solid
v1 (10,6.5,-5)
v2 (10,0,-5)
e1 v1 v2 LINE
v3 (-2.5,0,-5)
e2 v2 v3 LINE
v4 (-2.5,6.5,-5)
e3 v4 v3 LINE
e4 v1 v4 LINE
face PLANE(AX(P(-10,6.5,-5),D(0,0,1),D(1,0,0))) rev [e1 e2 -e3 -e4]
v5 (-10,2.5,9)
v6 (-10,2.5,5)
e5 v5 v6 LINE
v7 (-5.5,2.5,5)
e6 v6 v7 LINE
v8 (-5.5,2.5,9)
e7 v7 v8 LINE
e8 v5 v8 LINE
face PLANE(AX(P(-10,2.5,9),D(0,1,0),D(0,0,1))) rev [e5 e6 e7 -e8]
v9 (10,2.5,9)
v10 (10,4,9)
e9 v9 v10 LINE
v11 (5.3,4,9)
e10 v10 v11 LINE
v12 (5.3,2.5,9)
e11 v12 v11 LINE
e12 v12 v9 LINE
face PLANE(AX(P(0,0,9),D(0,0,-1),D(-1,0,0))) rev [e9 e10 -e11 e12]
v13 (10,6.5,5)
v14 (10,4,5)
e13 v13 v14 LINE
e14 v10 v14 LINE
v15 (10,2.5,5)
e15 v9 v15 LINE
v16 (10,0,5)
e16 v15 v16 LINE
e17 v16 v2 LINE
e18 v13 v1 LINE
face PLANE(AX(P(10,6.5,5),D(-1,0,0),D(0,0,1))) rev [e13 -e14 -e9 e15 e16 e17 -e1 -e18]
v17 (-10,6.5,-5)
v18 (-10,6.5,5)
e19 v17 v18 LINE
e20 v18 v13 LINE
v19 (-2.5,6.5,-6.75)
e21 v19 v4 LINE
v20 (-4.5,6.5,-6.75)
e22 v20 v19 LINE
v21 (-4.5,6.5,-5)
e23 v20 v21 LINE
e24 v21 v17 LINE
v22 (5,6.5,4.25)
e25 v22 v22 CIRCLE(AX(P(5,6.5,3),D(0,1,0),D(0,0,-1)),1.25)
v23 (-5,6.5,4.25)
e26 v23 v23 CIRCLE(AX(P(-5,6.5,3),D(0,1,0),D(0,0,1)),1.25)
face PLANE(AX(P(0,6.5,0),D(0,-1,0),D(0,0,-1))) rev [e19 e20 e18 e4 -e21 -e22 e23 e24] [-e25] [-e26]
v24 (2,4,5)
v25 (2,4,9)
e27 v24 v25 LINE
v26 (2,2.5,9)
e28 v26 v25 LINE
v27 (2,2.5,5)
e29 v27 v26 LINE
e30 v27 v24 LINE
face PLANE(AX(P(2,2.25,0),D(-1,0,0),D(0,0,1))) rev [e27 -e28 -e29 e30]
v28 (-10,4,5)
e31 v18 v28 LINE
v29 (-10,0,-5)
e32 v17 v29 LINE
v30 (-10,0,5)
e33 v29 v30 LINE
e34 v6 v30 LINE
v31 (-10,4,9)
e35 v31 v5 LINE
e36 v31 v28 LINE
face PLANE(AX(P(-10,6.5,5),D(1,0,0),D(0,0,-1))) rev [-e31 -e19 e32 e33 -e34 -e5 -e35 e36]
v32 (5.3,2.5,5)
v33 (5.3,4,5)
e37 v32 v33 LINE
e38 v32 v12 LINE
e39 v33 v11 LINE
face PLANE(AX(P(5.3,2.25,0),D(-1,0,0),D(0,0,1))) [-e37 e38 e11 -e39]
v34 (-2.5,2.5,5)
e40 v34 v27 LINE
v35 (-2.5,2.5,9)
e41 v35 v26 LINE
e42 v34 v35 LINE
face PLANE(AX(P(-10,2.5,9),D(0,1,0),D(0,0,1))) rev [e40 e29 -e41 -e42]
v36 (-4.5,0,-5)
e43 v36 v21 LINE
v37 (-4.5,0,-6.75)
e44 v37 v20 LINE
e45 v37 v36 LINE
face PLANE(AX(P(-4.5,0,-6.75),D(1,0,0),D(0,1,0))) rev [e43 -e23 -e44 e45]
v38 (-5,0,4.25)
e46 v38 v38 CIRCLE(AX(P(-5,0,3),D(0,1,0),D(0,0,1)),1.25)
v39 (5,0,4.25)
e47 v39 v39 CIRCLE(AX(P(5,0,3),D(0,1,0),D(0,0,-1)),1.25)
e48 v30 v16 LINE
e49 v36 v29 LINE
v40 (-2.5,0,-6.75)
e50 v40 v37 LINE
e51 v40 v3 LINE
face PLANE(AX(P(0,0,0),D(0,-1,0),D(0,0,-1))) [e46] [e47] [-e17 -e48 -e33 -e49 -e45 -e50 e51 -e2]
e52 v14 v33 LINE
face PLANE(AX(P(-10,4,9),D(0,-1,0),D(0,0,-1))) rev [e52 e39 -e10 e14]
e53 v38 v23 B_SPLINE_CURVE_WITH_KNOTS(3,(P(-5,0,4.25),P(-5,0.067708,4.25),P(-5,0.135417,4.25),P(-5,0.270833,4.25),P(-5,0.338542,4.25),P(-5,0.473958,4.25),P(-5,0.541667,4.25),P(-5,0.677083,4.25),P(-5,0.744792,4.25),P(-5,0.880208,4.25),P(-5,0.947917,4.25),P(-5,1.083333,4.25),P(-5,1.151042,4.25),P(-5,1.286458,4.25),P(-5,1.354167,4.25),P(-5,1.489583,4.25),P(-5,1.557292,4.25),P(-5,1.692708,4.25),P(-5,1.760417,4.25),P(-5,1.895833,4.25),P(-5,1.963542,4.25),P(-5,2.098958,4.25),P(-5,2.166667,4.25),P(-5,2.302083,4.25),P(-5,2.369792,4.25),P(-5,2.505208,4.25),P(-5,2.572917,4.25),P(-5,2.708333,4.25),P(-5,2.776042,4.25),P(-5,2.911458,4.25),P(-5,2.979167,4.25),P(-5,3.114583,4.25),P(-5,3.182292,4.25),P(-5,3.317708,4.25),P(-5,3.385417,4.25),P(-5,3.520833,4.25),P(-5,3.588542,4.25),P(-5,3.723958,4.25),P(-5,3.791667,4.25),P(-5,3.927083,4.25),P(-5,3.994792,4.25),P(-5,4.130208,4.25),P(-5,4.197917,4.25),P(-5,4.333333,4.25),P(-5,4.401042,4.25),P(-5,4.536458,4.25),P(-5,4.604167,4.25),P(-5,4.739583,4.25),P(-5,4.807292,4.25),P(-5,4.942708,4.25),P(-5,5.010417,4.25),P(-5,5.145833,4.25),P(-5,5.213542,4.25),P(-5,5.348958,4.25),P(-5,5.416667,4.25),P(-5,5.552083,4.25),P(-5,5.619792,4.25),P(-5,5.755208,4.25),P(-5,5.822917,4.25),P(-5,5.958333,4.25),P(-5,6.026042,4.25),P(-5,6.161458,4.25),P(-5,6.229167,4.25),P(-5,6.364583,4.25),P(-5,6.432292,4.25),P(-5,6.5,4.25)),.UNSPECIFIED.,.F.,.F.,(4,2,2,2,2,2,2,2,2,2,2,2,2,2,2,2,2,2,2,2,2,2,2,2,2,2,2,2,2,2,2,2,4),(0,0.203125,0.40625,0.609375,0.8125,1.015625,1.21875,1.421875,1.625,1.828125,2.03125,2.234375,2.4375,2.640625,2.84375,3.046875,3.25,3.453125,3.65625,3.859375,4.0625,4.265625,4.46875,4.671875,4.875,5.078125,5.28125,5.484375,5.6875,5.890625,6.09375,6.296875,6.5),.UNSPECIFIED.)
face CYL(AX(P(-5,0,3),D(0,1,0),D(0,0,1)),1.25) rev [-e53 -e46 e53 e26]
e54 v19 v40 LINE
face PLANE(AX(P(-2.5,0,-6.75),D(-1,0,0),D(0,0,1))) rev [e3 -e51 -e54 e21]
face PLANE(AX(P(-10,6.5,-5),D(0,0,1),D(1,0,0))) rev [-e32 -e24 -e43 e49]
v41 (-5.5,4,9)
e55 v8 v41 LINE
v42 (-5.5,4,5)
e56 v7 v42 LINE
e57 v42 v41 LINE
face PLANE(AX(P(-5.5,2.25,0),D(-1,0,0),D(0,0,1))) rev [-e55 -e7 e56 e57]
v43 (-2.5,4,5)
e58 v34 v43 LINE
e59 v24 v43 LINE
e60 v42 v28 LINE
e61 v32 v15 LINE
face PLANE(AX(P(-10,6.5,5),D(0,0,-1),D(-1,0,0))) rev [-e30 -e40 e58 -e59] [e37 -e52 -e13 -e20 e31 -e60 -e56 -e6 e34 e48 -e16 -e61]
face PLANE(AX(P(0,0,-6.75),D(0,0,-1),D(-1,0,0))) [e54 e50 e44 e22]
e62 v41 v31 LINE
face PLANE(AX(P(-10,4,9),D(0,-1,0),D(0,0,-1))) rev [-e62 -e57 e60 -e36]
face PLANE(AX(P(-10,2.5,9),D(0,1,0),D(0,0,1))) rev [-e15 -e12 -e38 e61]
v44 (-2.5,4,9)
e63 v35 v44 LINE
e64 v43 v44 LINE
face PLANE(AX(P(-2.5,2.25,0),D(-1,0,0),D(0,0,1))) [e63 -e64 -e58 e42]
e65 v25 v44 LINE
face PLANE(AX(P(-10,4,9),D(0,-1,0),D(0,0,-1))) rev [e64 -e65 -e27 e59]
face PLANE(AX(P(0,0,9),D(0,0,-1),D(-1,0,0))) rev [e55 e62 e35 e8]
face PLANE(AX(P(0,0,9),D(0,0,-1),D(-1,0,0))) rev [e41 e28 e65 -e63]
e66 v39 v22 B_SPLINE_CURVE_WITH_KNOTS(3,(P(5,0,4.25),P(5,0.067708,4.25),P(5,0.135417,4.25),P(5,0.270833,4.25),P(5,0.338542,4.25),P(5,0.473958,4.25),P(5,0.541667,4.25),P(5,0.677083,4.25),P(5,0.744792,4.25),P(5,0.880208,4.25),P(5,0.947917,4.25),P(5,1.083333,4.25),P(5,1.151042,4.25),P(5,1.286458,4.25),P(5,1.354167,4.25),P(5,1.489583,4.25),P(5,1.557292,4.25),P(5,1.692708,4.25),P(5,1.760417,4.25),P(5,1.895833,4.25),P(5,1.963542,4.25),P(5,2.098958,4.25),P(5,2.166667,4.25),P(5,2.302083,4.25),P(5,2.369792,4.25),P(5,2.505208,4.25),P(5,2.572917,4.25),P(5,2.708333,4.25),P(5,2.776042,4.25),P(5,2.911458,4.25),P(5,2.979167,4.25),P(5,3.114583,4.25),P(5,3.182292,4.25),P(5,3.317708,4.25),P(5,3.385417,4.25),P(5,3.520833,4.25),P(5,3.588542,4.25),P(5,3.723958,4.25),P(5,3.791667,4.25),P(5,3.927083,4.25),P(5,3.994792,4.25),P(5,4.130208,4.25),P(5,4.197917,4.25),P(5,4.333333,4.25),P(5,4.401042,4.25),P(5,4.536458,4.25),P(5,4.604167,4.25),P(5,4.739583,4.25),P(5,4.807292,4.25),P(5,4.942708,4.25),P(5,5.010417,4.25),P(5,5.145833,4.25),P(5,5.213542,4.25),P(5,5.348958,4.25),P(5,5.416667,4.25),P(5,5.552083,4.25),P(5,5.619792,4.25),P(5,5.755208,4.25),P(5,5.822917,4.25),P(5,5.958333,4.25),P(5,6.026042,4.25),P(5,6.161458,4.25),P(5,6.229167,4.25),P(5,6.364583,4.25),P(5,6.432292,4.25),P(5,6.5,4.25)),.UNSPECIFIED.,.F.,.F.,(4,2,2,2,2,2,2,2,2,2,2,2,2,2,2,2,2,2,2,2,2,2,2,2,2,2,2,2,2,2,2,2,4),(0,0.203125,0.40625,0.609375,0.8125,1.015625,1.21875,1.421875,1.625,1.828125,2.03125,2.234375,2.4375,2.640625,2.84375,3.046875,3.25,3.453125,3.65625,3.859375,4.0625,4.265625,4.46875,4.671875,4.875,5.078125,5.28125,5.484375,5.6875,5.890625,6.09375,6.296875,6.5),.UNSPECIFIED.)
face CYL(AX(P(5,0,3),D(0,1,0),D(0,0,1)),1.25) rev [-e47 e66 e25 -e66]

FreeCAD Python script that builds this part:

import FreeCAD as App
import Part
import Sketcher

V = App.Vector


def add_polygon(sketch, points):
    """Adds a closed chain of lines whose ends are joined by coincident constraints."""
    first, n = sketch.GeometryCount, len(points)
    for a, b in zip(points, points[1:] + points[:1]):
        sketch.addGeometry(Part.LineSegment(App.Vector(*a, 0), App.Vector(*b, 0)), False)
    for i in range(n):
        sketch.addConstraint(Sketcher.Constraint("Coincident", first + i, 2, first + (i + 1) % n, 1))

doc = App.newDocument("Part")
body = doc.addObject("PartDesign::Body", "Body")

sketch1 = body.newObject("Sketcher::SketchObject", "Sketch")
sketch1.AttachmentSupport = (doc.getObject("XZ_Plane"), [""])
sketch1.MapMode = "FlatFace"
add_polygon(sketch1, [(-10, -5), (-10, 5), (10, 5), (10, -5)])
sketch1.addConstraint([
    Sketcher.Constraint("Vertical", 0),
    Sketcher.Constraint("Horizontal", 1),
    Sketcher.Constraint("Vertical", 2),
    Sketcher.Constraint("Horizontal", 3),
    Sketcher.Constraint("Symmetric", 0, 2, 2, 2, -1, 1),
    Sketcher.Constraint("DistanceX", 1, 1, 1, 2, 20.0),
    Sketcher.Constraint("DistanceY", 0, 1, 0, 2, 10.0),
])
pad1 = body.newObject("PartDesign::Pad", "Pad")
pad1.Profile = sketch1
pad1.Length = 6.5
pad1.Reversed = True

sketch2 = body.newObject("Sketcher::SketchObject", "Sketch001")
sketch2.AttachmentSupport = (doc.getObject("XY_Plane"), [""])
sketch2.MapMode = "FlatFace"
sketch2.AttachmentOffset = App.Placement(V(0, 0, 5), App.Rotation())
add_polygon(sketch2, [(-10, 4), (-10, 2.5), (10, 2.5), (10, 4)])
sketch2.addConstraint([
    Sketcher.Constraint("Vertical", 0),
    Sketcher.Constraint("Horizontal", 1),
    Sketcher.Constraint("Vertical", 2),
    Sketcher.Constraint("Horizontal", 3),
    Sketcher.Constraint("DistanceX", 1, 1, 1, 2, 20.0),
    Sketcher.Constraint("DistanceY", 0, 2, 0, 1, 1.5),
    Sketcher.Constraint("DistanceX", 0, 2, -1, 1, 10.0),
    Sketcher.Constraint("DistanceY", -1, 1, 2, 2, 4.0),
])
pad2 = body.newObject("PartDesign::Pad", "Pad001")
pad2.Profile = sketch2
pad2.Length = 4

sketch3 = body.newObject("Sketcher::SketchObject", "Sketch002")
sketch3.AttachmentSupport = (doc.getObject("XZ_Plane"), [""])
sketch3.MapMode = "FlatFace"
sketch3.AttachmentOffset = App.Placement(V(0, 0, -6.5), App.Rotation())
sketch3.addGeometry([
    Part.Circle(V(-5, 3, 0), V(0, 0, 1), 1.25),
    Part.Circle(V(5, 3, 0), V(0, 0, 1), 1.25),
], False)
sketch3.addConstraint([
    Sketcher.Constraint("Equal", 0, 1),
    Sketcher.Constraint("Symmetric", 0, 3, 1, 3, -2),
    Sketcher.Constraint("Diameter", 0, 2.5),
    Sketcher.Constraint("DistanceX", 0, 3, -1, 1, 5.0),
    Sketcher.Constraint("DistanceY", -1, 1, 0, 3, 3.0),
])
pocket1 = body.newObject("PartDesign::Pocket", "Pocket")
pocket1.Profile = sketch3
pocket1.Type = "ThroughAll"
pocket1.Reversed = True

sketch4 = body.newObject("Sketcher::SketchObject", "Sketch003")
sketch4.AttachmentSupport = (doc.getObject("XY_Plane"), [""])
sketch4.MapMode = "FlatFace"
sketch4.AttachmentOffset = App.Placement(V(0, 0, -5), App.Rotation())
add_polygon(sketch4, [(-2.5, 6.5), (-2.5, 0), (-4.5, 0), (-4.5, 6.5)])
sketch4.addConstraint([
    Sketcher.Constraint("Vertical", 0),
    Sketcher.Constraint("Horizontal", 1),
    Sketcher.Constraint("Vertical", 2),
    Sketcher.Constraint("Horizontal", 3),
    Sketcher.Constraint("PointOnObject", 0, 2, -1),
    Sketcher.Constraint("DistanceX", 1, 2, 1, 1, 2.0),
    Sketcher.Constraint("DistanceY", 0, 2, 0, 1, 6.5),
    Sketcher.Constraint("DistanceX", 0, 2, -1, 1, 2.5),
])
pad3 = body.newObject("PartDesign::Pad", "Pad002")
pad3.Profile = sketch4
pad3.Length = 1.75
pad3.Reversed = True

sketch5 = body.newObject("Sketcher::SketchObject", "Sketch004")
sketch5.AttachmentSupport = (doc.getObject("XZ_Plane"), [""])
sketch5.MapMode = "FlatFace"
sketch5.AttachmentOffset = App.Placement(V(0, 0, -4), App.Rotation())
add_polygon(sketch5, [(-5.5, 5), (-5.5, 9), (-2.5, 9), (-2.5, 5)])
add_polygon(sketch5, [(2, 5), (2, 9), (5.3, 9), (5.3, 5)])
sketch5.addConstraint([
    Sketcher.Constraint("Vertical", 0),
    Sketcher.Constraint("Horizontal", 1),
    Sketcher.Constraint("Vertical", 2),
    Sketcher.Constraint("Horizontal", 3),
    Sketcher.Constraint("Vertical", 4),
    Sketcher.Constraint("Horizontal", 5),
    Sketcher.Constraint("Vertical", 6),
    Sketcher.Constraint("Horizontal", 7),
    Sketcher.Constraint("Horizontal", 1, 2, 4, 2),
    Sketcher.Constraint("Horizontal", 3, 2, 6, 2),
    Sketcher.Constraint("DistanceX", 1, 1, 1, 2, 3.0),
    Sketcher.Constraint("DistanceY", 0, 1, 0, 2, 4.0),
    Sketcher.Constraint("DistanceX", 5, 1, 5, 2, 3.3),
    Sketcher.Constraint("DistanceY", -1, 1, 0, 2, 9.0),
    Sketcher.Constraint("DistanceX", -1, 1, 4, 2, 2.0),
    Sketcher.Constraint("DistanceX", 0, 2, -1, 1, 5.5),
])
pocket2 = body.newObject("PartDesign::Pocket", "Pocket001")
pocket2.Profile = sketch5
pocket2.Length = 1.75
pocket2.Reversed = True

doc.recompute()
